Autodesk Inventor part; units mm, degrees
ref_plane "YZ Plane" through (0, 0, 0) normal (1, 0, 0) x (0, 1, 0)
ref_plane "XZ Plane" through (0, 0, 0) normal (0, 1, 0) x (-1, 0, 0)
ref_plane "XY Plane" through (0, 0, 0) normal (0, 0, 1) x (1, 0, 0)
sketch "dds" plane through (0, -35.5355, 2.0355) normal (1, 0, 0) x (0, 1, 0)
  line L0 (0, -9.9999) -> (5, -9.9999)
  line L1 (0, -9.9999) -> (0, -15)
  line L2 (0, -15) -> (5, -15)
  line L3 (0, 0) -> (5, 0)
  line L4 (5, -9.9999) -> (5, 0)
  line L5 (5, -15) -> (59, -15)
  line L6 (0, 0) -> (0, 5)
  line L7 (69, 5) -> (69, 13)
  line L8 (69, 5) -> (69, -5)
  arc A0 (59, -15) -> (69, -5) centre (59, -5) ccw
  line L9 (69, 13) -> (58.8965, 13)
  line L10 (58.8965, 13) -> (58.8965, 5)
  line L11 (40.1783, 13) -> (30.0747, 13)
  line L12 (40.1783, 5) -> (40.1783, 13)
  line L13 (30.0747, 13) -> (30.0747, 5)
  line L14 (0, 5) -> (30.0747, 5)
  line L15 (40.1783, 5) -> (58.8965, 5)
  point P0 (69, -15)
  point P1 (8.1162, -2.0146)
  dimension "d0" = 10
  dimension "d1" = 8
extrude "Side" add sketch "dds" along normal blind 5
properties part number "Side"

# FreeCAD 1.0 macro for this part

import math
import FreeCAD as App
import Part
import Sketcher

doc = App.newDocument("Part")
body = doc.addObject("PartDesign::Body", "Body")

sketch1 = doc.addObject("Sketcher::SketchObject", "Sketch")
body.addObject(sketch1)
sketch1.AttachmentSupport = (doc.YZ_Plane, [""])
sketch1.MapMode = "FlatFace"
sketch1.addGeometry(Part.LineSegment(App.Vector(-31, -8, 0), App.Vector(-36, -8, 0)), False)
sketch1.addGeometry(Part.LineSegment(App.Vector(-36, -8, 0), App.Vector(-36, -13, 0)), False)
sketch1.addGeometry(Part.LineSegment(App.Vector(-36, -13, 0), App.Vector(23, -13, 0)), False)
sketch1.addGeometry(Part.ArcOfCircle(Part.Circle(App.Vector(23, -3, 0), App.Vector(0, 0, 1), 10), math.radians(-90), math.radians(0)), False)
sketch1.addGeometry(Part.LineSegment(App.Vector(33, -3, 0), App.Vector(33, 15, 0)), False)
sketch1.addGeometry(Part.LineSegment(App.Vector(33, 15, 0), App.Vector(23, 15, 0)), False)
sketch1.addGeometry(Part.LineSegment(App.Vector(23, 15, 0), App.Vector(23, 7, 0)), False)
sketch1.addGeometry(Part.LineSegment(App.Vector(23, 7, 0), App.Vector(5, 7, 0)), False)
sketch1.addGeometry(Part.LineSegment(App.Vector(5, 7, 0), App.Vector(5, 15, 0)), False)
sketch1.addGeometry(Part.LineSegment(App.Vector(5, 15, 0), App.Vector(-5, 15, 0)), False)
sketch1.addGeometry(Part.LineSegment(App.Vector(-5, 15, 0), App.Vector(-5, 7, 0)), False)
sketch1.addGeometry(Part.LineSegment(App.Vector(-5, 7, 0), App.Vector(-36, 7, 0)), False)
sketch1.addGeometry(Part.LineSegment(App.Vector(-36, 7, 0), App.Vector(-36, 2, 0)), False)
sketch1.addGeometry(Part.LineSegment(App.Vector(-36, 2, 0), App.Vector(-31, 2, 0)), False)
sketch1.addGeometry(Part.LineSegment(App.Vector(-31, 2, 0), App.Vector(-31, -8, 0)), False)
sketch1.addConstraint(Sketcher.Constraint("Coincident", 0, 2, 1, 1))
sketch1.addConstraint(Sketcher.Constraint("Coincident", 1, 2, 2, 1))
sketch1.addConstraint(Sketcher.Constraint("Tangent", 2, 2, 3, 1))
sketch1.addConstraint(Sketcher.Constraint("Tangent", 3, 2, 4, 1))
sketch1.addConstraint(Sketcher.Constraint("Coincident", 4, 2, 5, 1))
sketch1.addConstraint(Sketcher.Constraint("Coincident", 5, 2, 6, 1))
sketch1.addConstraint(Sketcher.Constraint("Coincident", 6, 2, 7, 1))
sketch1.addConstraint(Sketcher.Constraint("Coincident", 7, 2, 8, 1))
sketch1.addConstraint(Sketcher.Constraint("Coincident", 8, 2, 9, 1))
sketch1.addConstraint(Sketcher.Constraint("Coincident", 9, 2, 10, 1))
sketch1.addConstraint(Sketcher.Constraint("Coincident", 10, 2, 11, 1))
sketch1.addConstraint(Sketcher.Constraint("Coincident", 11, 2, 12, 1))
sketch1.addConstraint(Sketcher.Constraint("Coincident", 12, 2, 13, 1))
sketch1.addConstraint(Sketcher.Constraint("Coincident", 13, 2, 14, 1))
sketch1.addConstraint(Sketcher.Constraint("Coincident", 14, 2, 0, 1))
sketch1.addConstraint(Sketcher.Constraint("Horizontal", 0))
sketch1.addConstraint(Sketcher.Constraint("Vertical", 1))
sketch1.addConstraint(Sketcher.Constraint("Horizontal", 2))
sketch1.addConstraint(Sketcher.Constraint("Vertical", 4))
sketch1.addConstraint(Sketcher.Constraint("Horizontal", 5))
sketch1.addConstraint(Sketcher.Constraint("Vertical", 6))
sketch1.addConstraint(Sketcher.Constraint("Horizontal", 7))
sketch1.addConstraint(Sketcher.Constraint("Vertical", 8))
sketch1.addConstraint(Sketcher.Constraint("Horizontal", 9))
sketch1.addConstraint(Sketcher.Constraint("Vertical", 10))
sketch1.addConstraint(Sketcher.Constraint("Horizontal", 11))
sketch1.addConstraint(Sketcher.Constraint("Vertical", 12))
sketch1.addConstraint(Sketcher.Constraint("Horizontal", 13))
sketch1.addConstraint(Sketcher.Constraint("Vertical", 14))
sketch1.addConstraint(Sketcher.Constraint("Horizontal", 5, 2, 8, 2))
sketch1.addConstraint(Sketcher.Constraint("Horizontal", 7, 2, 10, 2))
sketch1.addConstraint(Sketcher.Constraint("Vertical", 1, 2, 11, 2))
sketch1.addConstraint(Sketcher.Constraint("Equal", 5, 9))
sketch1.addConstraint(Sketcher.Constraint("Equal", 13, 1))
sketch1.addConstraint(Sketcher.Constraint("Equal", 1, 12))
sketch1.addConstraint(Sketcher.Constraint("Radius", 3, 10.0))
sketch1.addConstraint(Sketcher.Constraint("DistanceY", 6, 2, 6, 1, 8.0))
sketch1.addConstraint(Sketcher.Constraint("DistanceY", 14, 2, 14, 1, 10.0))
sketch1.addConstraint(Sketcher.Constraint("DistanceY", 3, 3, 6, 2, 10.0))
sketch1.addConstraint(Sketcher.Constraint("DistanceX", 2, 1, 2, 2, 59.0))
sketch1.addConstraint(Sketcher.Constraint("DistanceX", 5, 2, 5, 1, 10.1035))
sketch1.addConstraint(Sketcher.Constraint("DistanceX", 7, 2, 7, 1, 18.7182))
sketch1.addConstraint(Sketcher.Constraint("DistanceX", -1, 1, 5, 2, 23.361))
sketch1.addConstraint(Sketcher.Constraint("DistanceY", 3, 3, -1, 1, 2.9645))
pad1 = doc.addObject("PartDesign::Pad", "Pad")
body.addObject(pad1)
pad1.Profile = sketch1
pad1.Length = 5

doc.recompute()
